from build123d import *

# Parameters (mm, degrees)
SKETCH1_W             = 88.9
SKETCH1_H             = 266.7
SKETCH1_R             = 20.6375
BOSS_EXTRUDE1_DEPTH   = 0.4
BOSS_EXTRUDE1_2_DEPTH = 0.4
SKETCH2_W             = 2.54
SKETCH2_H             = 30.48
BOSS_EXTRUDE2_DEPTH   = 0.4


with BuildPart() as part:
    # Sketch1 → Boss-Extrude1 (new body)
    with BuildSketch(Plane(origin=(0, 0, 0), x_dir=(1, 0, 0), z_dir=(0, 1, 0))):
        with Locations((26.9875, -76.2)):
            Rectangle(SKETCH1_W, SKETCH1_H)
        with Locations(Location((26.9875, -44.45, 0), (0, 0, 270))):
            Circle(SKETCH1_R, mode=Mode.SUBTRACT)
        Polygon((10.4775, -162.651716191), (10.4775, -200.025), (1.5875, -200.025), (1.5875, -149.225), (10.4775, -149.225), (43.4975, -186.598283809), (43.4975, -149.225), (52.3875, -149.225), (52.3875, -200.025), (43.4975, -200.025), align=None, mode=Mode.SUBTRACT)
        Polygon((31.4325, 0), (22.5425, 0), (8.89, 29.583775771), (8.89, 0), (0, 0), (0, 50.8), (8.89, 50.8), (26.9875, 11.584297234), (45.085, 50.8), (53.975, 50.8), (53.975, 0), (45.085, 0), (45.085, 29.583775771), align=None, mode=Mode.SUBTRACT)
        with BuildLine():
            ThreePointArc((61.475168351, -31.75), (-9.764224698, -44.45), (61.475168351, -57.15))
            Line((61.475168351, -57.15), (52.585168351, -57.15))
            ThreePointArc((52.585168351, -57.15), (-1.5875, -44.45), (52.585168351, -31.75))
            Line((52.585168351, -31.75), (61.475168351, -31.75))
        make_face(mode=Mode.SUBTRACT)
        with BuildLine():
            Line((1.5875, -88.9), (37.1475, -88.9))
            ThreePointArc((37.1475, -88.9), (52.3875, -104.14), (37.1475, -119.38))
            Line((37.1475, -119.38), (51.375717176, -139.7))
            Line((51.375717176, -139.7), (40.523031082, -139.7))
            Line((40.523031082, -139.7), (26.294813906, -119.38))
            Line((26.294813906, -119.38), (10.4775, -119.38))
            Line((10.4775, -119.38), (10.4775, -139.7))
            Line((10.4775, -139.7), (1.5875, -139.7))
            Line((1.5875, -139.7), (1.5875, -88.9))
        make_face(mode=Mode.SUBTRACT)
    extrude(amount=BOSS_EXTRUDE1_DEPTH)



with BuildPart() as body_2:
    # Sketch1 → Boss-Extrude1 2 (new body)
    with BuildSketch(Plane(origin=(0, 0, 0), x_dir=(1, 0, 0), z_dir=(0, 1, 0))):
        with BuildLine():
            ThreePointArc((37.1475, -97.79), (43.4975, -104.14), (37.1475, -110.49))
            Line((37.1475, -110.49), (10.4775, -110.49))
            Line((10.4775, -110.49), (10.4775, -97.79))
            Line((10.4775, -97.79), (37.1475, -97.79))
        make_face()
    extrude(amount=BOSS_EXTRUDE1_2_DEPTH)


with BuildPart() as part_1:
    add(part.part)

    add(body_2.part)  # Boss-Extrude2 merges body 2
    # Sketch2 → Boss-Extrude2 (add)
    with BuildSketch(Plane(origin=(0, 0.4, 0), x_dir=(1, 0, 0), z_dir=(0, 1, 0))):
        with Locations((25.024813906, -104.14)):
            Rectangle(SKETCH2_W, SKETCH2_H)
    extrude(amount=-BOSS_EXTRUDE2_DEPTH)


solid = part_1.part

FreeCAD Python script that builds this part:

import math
import FreeCAD as App
import Part
import Sketcher
from FreeCAD import Vector
Q = App.Units.Quantity

doc = App.newDocument("Part")
body = doc.addObject("PartDesign::Body", "Body")

# Sketch on XZ plane
sketch1 = body.newObject("Sketcher::SketchObject", "Sketch")
sketch1.AttachmentSupport = (doc.getObject("XZ_Plane"), [""])
sketch1.MapMode = "FlatFace"
sketch1.addGeometry(Part.LineSegment(Vector(-17.4625, -57.15, 0), Vector(-17.4625, 209.55, 0)), False)
sketch1.addGeometry(Part.LineSegment(Vector(-17.4625, 209.55, 0), Vector(71.4375, 209.55, 0)), False)
sketch1.addGeometry(Part.LineSegment(Vector(71.4375, 209.55, 0), Vector(71.4375, -57.15, 0)), False)
sketch1.addGeometry(Part.LineSegment(Vector(71.4375, -57.15, 0), Vector(-17.4625, -57.15, 0)), False)
sketch1.addGeometry(Part.LineSegment(Vector(43.4975, 200.025, 0), Vector(10.4775, 162.651716, 0)), False)
sketch1.addGeometry(Part.LineSegment(Vector(10.4775, 162.651716, 0), Vector(10.4775, 200.025, 0)), False)
sketch1.addGeometry(Part.LineSegment(Vector(10.4775, 200.025, 0), Vector(1.5875, 200.025, 0)), False)
sketch1.addGeometry(Part.LineSegment(Vector(1.5875, 200.025, 0), Vector(1.5875, 149.225, 0)), False)
sketch1.addGeometry(Part.LineSegment(Vector(1.5875, 149.225, 0), Vector(10.4775, 149.225, 0)), False)
sketch1.addGeometry(Part.LineSegment(Vector(10.4775, 149.225, 0), Vector(43.4975, 186.598284, 0)), False)
sketch1.addGeometry(Part.LineSegment(Vector(43.4975, 186.598284, 0), Vector(43.4975, 149.225, 0)), False)
sketch1.addGeometry(Part.LineSegment(Vector(43.4975, 149.225, 0), Vector(52.3875, 149.225, 0)), False)
sketch1.addGeometry(Part.LineSegment(Vector(52.3875, 149.225, 0), Vector(52.3875, 200.025, 0)), False)
sketch1.addGeometry(Part.LineSegment(Vector(52.3875, 200.025, 0), Vector(43.4975, 200.025, 0)), False)
sketch1.addGeometry(Part.LineSegment(Vector(1.5875, 139.7, 0), Vector(1.5875, 88.9, 0)), False)
sketch1.addGeometry(Part.LineSegment(Vector(1.5875, 88.9, 0), Vector(37.1475, 88.9, 0)), False)
sketch1.addGeometry(Part.ArcOfCircle(Part.Circle(Vector(37.1475, 104.14, 0), Vector(0, 0, 1), 15.24), math.radians(-90), math.radians(90)), False)
sketch1.addGeometry(Part.LineSegment(Vector(37.1475, 119.38, 0), Vector(51.375717, 139.7, 0)), False)
sketch1.addGeometry(Part.LineSegment(Vector(51.375717, 139.7, 0), Vector(40.523031, 139.7, 0)), False)
sketch1.addGeometry(Part.LineSegment(Vector(40.523031, 139.7, 0), Vector(26.294814, 119.38, 0)), False)
sketch1.addGeometry(Part.LineSegment(Vector(26.294814, 119.38, 0), Vector(10.4775, 119.38, 0)), False)
sketch1.addGeometry(Part.LineSegment(Vector(10.4775, 119.38, 0), Vector(10.4775, 139.7, 0)), False)
sketch1.addGeometry(Part.LineSegment(Vector(10.4775, 139.7, 0), Vector(1.5875, 139.7, 0)), False)
sketch1.addGeometry(Part.ArcOfCircle(Part.Circle(Vector(26.9875, 44.45, 0), Vector(0, 0, 1), 36.751725), math.radians(20.216107), math.radians(339.783893)), False)
sketch1.addGeometry(Part.LineSegment(Vector(61.475168, 31.75, 0), Vector(52.585168, 31.75, 0)), False)
sketch1.addGeometry(Part.ArcOfCircle(Part.Circle(Vector(26.9875, 44.45, 0), Vector(0, 0, 1), 28.575), math.radians(26.3878), math.radians(333.6122)), False)
sketch1.addGeometry(Part.LineSegment(Vector(52.585168, 57.15, 0), Vector(61.475168, 57.15, 0)), False)
sketch1.addGeometry(Part.Circle(Vector(26.9875, 44.45, 0), Vector(0, 0, 1), 20.6375), False)
sketch1.addGeometry(Part.LineSegment(Vector(45.085, -29.583776, 0), Vector(31.4325, 0, 0)), False)
sketch1.addGeometry(Part.LineSegment(Vector(31.4325, 0, 0), Vector(22.5425, 0, 0)), False)
sketch1.addGeometry(Part.LineSegment(Vector(22.5425, 0, 0), Vector(8.89, -29.583776, 0)), False)
sketch1.addGeometry(Part.LineSegment(Vector(8.89, -29.583776, 0), Vector(8.89, 0, 0)), False)
sketch1.addGeometry(Part.LineSegment(Vector(8.89, 0, 0), Vector(0, 0, 0)), False)
sketch1.addGeometry(Part.LineSegment(Vector(0, 0, 0), Vector(0, -50.8, 0)), False)
sketch1.addGeometry(Part.LineSegment(Vector(0, -50.8, 0), Vector(8.89, -50.8, 0)), False)
sketch1.addGeometry(Part.LineSegment(Vector(8.89, -50.8, 0), Vector(26.9875, -11.584297, 0)), False)
sketch1.addGeometry(Part.LineSegment(Vector(26.9875, -11.584297, 0), Vector(45.085, -50.8, 0)), False)
sketch1.addGeometry(Part.LineSegment(Vector(45.085, -50.8, 0), Vector(53.975, -50.8, 0)), False)
sketch1.addGeometry(Part.LineSegment(Vector(53.975, -50.8, 0), Vector(53.975, 0, 0)), False)
sketch1.addGeometry(Part.LineSegment(Vector(53.975, 0, 0), Vector(45.085, 0, 0)), False)
sketch1.addGeometry(Part.LineSegment(Vector(45.085, 0, 0), Vector(45.085, -29.583776, 0)), False)
sketch1.addConstraint(Sketcher.Constraint("Coincident", 0, 2, 1, 1))
sketch1.addConstraint(Sketcher.Constraint("Coincident", 1, 2, 2, 1))
sketch1.addConstraint(Sketcher.Constraint("Coincident", 2, 2, 3, 1))
sketch1.addConstraint(Sketcher.Constraint("Coincident", 3, 2, 0, 1))
sketch1.addConstraint(Sketcher.Constraint("Coincident", 4, 2, 5, 1))
sketch1.addConstraint(Sketcher.Constraint("Coincident", 5, 2, 6, 1))
sketch1.addConstraint(Sketcher.Constraint("Coincident", 6, 2, 7, 1))
sketch1.addConstraint(Sketcher.Constraint("Coincident", 7, 2, 8, 1))
sketch1.addConstraint(Sketcher.Constraint("Coincident", 8, 2, 9, 1))
sketch1.addConstraint(Sketcher.Constraint("Coincident", 9, 2, 10, 1))
sketch1.addConstraint(Sketcher.Constraint("Coincident", 10, 2, 11, 1))
sketch1.addConstraint(Sketcher.Constraint("Coincident", 11, 2, 12, 1))
sketch1.addConstraint(Sketcher.Constraint("Coincident", 12, 2, 13, 1))
sketch1.addConstraint(Sketcher.Constraint("Coincident", 13, 2, 4, 1))
sketch1.addConstraint(Sketcher.Constraint("Coincident", 14, 2, 15, 1))
sketch1.addConstraint(Sketcher.Constraint("Tangent", 15, 2, 16, 1))
sketch1.addConstraint(Sketcher.Constraint("Coincident", 16, 2, 17, 1))
sketch1.addConstraint(Sketcher.Constraint("Coincident", 17, 2, 18, 1))
sketch1.addConstraint(Sketcher.Constraint("Coincident", 18, 2, 19, 1))
sketch1.addConstraint(Sketcher.Constraint("Coincident", 19, 2, 20, 1))
sketch1.addConstraint(Sketcher.Constraint("Coincident", 20, 2, 21, 1))
sketch1.addConstraint(Sketcher.Constraint("Coincident", 21, 2, 22, 1))
sketch1.addConstraint(Sketcher.Constraint("Coincident", 22, 2, 14, 1))
sketch1.addConstraint(Sketcher.Constraint("Coincident", 23, 2, 24, 1))
sketch1.addConstraint(Sketcher.Constraint("Coincident", 24, 2, 25, 2))
sketch1.addConstraint(Sketcher.Constraint("Coincident", 25, 1, 26, 1))
sketch1.addConstraint(Sketcher.Constraint("Coincident", 26, 2, 23, 1))
sketch1.addConstraint(Sketcher.Constraint("Coincident", 28, 2, 29, 1))
sketch1.addConstraint(Sketcher.Constraint("Coincident", 29, 2, 30, 1))
sketch1.addConstraint(Sketcher.Constraint("Coincident", 30, 2, 31, 1))
sketch1.addConstraint(Sketcher.Constraint("Coincident", 31, 2, 32, 1))
sketch1.addConstraint(Sketcher.Constraint("Coincident", 32, 2, 33, 1))
sketch1.addConstraint(Sketcher.Constraint("Coincident", 33, 2, 34, 1))
sketch1.addConstraint(Sketcher.Constraint("Coincident", 34, 2, 35, 1))
sketch1.addConstraint(Sketcher.Constraint("Coincident", 35, 2, 36, 1))
sketch1.addConstraint(Sketcher.Constraint("Coincident", 36, 2, 37, 1))
sketch1.addConstraint(Sketcher.Constraint("Coincident", 37, 2, 38, 1))
sketch1.addConstraint(Sketcher.Constraint("Coincident", 38, 2, 39, 1))
sketch1.addConstraint(Sketcher.Constraint("Coincident", 39, 2, 40, 1))
sketch1.addConstraint(Sketcher.Constraint("Coincident", 40, 2, 28, 1))
sketch1.addConstraint(Sketcher.Constraint("Vertical", 0))
sketch1.addConstraint(Sketcher.Constraint("Horizontal", 1))
sketch1.addConstraint(Sketcher.Constraint("Vertical", 2))
sketch1.addConstraint(Sketcher.Constraint("Horizontal", 3))
sketch1.addConstraint(Sketcher.Constraint("Vertical", 5))
sketch1.addConstraint(Sketcher.Constraint("Horizontal", 6))
sketch1.addConstraint(Sketcher.Constraint("Vertical", 7))
sketch1.addConstraint(Sketcher.Constraint("Horizontal", 8))
sketch1.addConstraint(Sketcher.Constraint("Vertical", 10))
sketch1.addConstraint(Sketcher.Constraint("Horizontal", 11))
sketch1.addConstraint(Sketcher.Constraint("Vertical", 12))
sketch1.addConstraint(Sketcher.Constraint("Horizontal", 13))
sketch1.addConstraint(Sketcher.Constraint("Vertical", 14))
sketch1.addConstraint(Sketcher.Constraint("Horizontal", 15))
sketch1.addConstraint(Sketcher.Constraint("Horizontal", 18))
sketch1.addConstraint(Sketcher.Constraint("Horizontal", 20))
sketch1.addConstraint(Sketcher.Constraint("Vertical", 21))
sketch1.addConstraint(Sketcher.Constraint("Horizontal", 22))
sketch1.addConstraint(Sketcher.Constraint("Horizontal", 24))
sketch1.addConstraint(Sketcher.Constraint("Horizontal", 26))
sketch1.addConstraint(Sketcher.Constraint("Horizontal", 29))
sketch1.addConstraint(Sketcher.Constraint("Vertical", 31))
sketch1.addConstraint(Sketcher.Constraint("Horizontal", 32))
sketch1.addConstraint(Sketcher.Constraint("Vertical", 33))
sketch1.addConstraint(Sketcher.Constraint("Horizontal", 34))
sketch1.addConstraint(Sketcher.Constraint("Horizontal", 37))
sketch1.addConstraint(Sketcher.Constraint("Vertical", 38))
sketch1.addConstraint(Sketcher.Constraint("Horizontal", 39))
sketch1.addConstraint(Sketcher.Constraint("Vertical", 40))
sketch1.addConstraint(Sketcher.Constraint("Coincident", 32, 2, -1, 1))
sketch1.addConstraint(Sketcher.Constraint("Coincident", 25, 3, 23, 3))
sketch1.addConstraint(Sketcher.Constraint("Coincident", 27, 3, 23, 3))
sketch1.addConstraint(Sketcher.Constraint("PointOnObject", 28, 2, -1))
sketch1.addConstraint(Sketcher.Constraint("PointOnObject", 38, 2, -1))
sketch1.addConstraint(Sketcher.Constraint("Parallel", 4, 9))
sketch1.addConstraint(Sketcher.Constraint("Parallel", 17, 19))
sketch1.addConstraint(Sketcher.Constraint("Parallel", 30, 35))
sketch1.addConstraint(Sketcher.Constraint("Parallel", 28, 36))
sketch1.addConstraint(Sketcher.Constraint("Horizontal", 8, 2, 10, 2))
sketch1.addConstraint(Sketcher.Constraint("Horizontal", 6, 2, 12, 2))
sketch1.addConstraint(Sketcher.Constraint("Horizontal", 16, 2, 19, 2))
sketch1.addConstraint(Sketcher.Constraint("Horizontal", 18, 2, 21, 2))
sketch1.addConstraint(Sketcher.Constraint("Horizontal", 34, 2, 36, 2))
sketch1.addConstraint(Sketcher.Constraint("Horizontal", 30, 2, 40, 2))
sketch1.addConstraint(Sketcher.Constraint("Vertical", 5, 2, 8, 2))
sketch1.addConstraint(Sketcher.Constraint("Vertical", 10, 2, 13, 2))
sketch1.addConstraint(Sketcher.Constraint("Vertical", 7, 2, 14, 2))
sketch1.addConstraint(Sketcher.Constraint("Vertical", 15, 2, 16, 2))
sketch1.addConstraint(Sketcher.Constraint("Vertical", 8, 2, 20, 2))
sketch1.addConstraint(Sketcher.Constraint("Vertical", 24, 2, 25, 1))
sketch1.addConstraint(Sketcher.Constraint("Vertical", 31, 2, 34, 2))
sketch1.addConstraint(Sketcher.Constraint("Vertical", 27, 3, 35, 2))
sketch1.addConstraint(Sketcher.Constraint("Vertical", 36, 2, 39, 2))
sketch1.addConstraint(Sketcher.Constraint("Equal", 8, 11))
sketch1.addConstraint(Sketcher.Constraint("Equal", 22, 24))
sketch1.addConstraint(Sketcher.Constraint("Equal", 26, 29))
sketch1.addConstraint(Sketcher.Constraint("Equal", 29, 32))
sketch1.addConstraint(Sketcher.Constraint("Equal", 34, 37))
sketch1.addConstraint(Sketcher.Constraint("Equal", 12, 14))
sketch1.addConstraint(Sketcher.Constraint("Equal", 14, 33))
sketch1.addConstraint(Sketcher.Constraint("Equal", 28, 30))
sketch1.addConstraint(Sketcher.Constraint("Radius", 16, Q("0.6 in")))
sketch1.addConstraint(Sketcher.Constraint("DistanceY", 7, 2, 7, 1, Q("2 in")))
sketch1.addConstraint(Sketcher.Constraint("Diameter", 27, Q("1.625 in")))
sketch1.addConstraint(Sketcher.Constraint("DistanceX", 1, 1, 1, 2, Q("3.5 in")))
sketch1.addConstraint(Sketcher.Constraint("DistanceX", 15, 1, 15, 2, Q("1.4 in")))
sketch1.addConstraint(Sketcher.Constraint("DistanceY", 0, 1, 0, 2, Q("10.5 in")))
sketch1.addConstraint(Sketcher.Constraint("Angle", 17, Q("55 deg")))
sketch1.addConstraint(Sketcher.Constraint("Radius", 25, Q("1.125 in")))
sketch1.addConstraint(Sketcher.Constraint("DistanceY", 2, 2, 23, 3, Q("4 in")))
sketch1.addConstraint(Sketcher.Constraint("DistanceX", 6, 2, 12, 2, Q("2 in")))
sketch1.addConstraint(Sketcher.Constraint("DistanceX", 14, 2, 23, 3, Q("1 in")))
sketch1.addConstraint(Sketcher.Constraint("DistanceY", 24, 2, 25, 1, Q("1 in")))
sketch1.addConstraint(Sketcher.Constraint("DistanceX", 6, 2, 6, 1, Q("0.35 in")))
sketch1.addConstraint(Sketcher.Constraint("DistanceY", -1, 1, 16, 3, Q("4.1 in")))
sketch1.addConstraint(Sketcher.Constraint("DistanceX", 0, 2, 4, 2, Q("1.1 in")))
sketch1.addConstraint(Sketcher.Constraint("DistanceY", -1, 1, 23, 3, Q("1.75 in")))
sketch1.addConstraint(Sketcher.Constraint("DistanceX", -1, 1, 23, 3, Q("1.0625 in")))
sketch1.addConstraint(Sketcher.Constraint("DistanceY", -1, 1, 5, 2, Q("7.875 in")))
sketch1.addConstraint(Sketcher.Constraint("Distance", 4, 49.87066))
sketch1.addConstraint(Sketcher.Constraint("Distance", 28, 32.582059))
sketch1.addConstraint(Sketcher.Constraint("DistanceX", 18, 2, 18, 1, 10.852686))
pad1 = body.newObject("PartDesign::Pad", "Pad")
pad1.Profile = sketch1
pad1.Length = 0.4
pad1.Reversed = True
body2 = doc.addObject("PartDesign::Body", "Body001")

# Sketch on XZ plane
sketch2 = body2.newObject("Sketcher::SketchObject", "Sketch001")
sketch2.AttachmentSupport = (doc.getObject("XZ_Plane001"), [""])
sketch2.MapMode = "FlatFace"
sketch2.addGeometry(Part.ArcOfCircle(Part.Circle(Vector(37.1475, 104.14, 0), Vector(0, 0, 1), 6.35), math.radians(-90), math.radians(90)), False)
sketch2.addGeometry(Part.LineSegment(Vector(37.1475, 97.79, 0), Vector(10.4775, 97.79, 0)), False)
sketch2.addGeometry(Part.LineSegment(Vector(10.4775, 97.79, 0), Vector(10.4775, 110.49, 0)), False)
sketch2.addGeometry(Part.LineSegment(Vector(10.4775, 110.49, 0), Vector(37.1475, 110.49, 0)), False)
sketch2.addConstraint(Sketcher.Constraint("Tangent", 0, 1, 1, 1))
sketch2.addConstraint(Sketcher.Constraint("Coincident", 1, 2, 2, 1))
sketch2.addConstraint(Sketcher.Constraint("Coincident", 2, 2, 3, 1))
sketch2.addConstraint(Sketcher.Constraint("Tangent", 3, 2, 0, 2))
sketch2.addConstraint(Sketcher.Constraint("Horizontal", 1))
sketch2.addConstraint(Sketcher.Constraint("Vertical", 2))
sketch2.addConstraint(Sketcher.Constraint("Horizontal", 3))
sketch2.addConstraint(Sketcher.Constraint("Radius", 0, Q("0.25 in")))
sketch2.addConstraint(Sketcher.Constraint("DistanceX", 1, 2, 1, 1, Q("1.05 in")))
sketch2.addConstraint(Sketcher.Constraint("DistanceY", -1, 1, 0, 3, Q("4.1 in")))
sketch2.addConstraint(Sketcher.Constraint("DistanceX", -1, 1, 0, 3, Q("1.4625 in")))
pad2 = body2.newObject("PartDesign::Pad", "Pad001")
pad2.Profile = sketch2
pad2.Length = 0.4
pad2.Reversed = True
body.AllowCompound = True
doc.recompute()

boolean = body.newObject("PartDesign::Boolean", "Boolean")
boolean.Type = "Fuse"
boolean.addObjects([body2])

# Sketch on XZ plane
sketch3 = body.newObject("Sketcher::SketchObject", "Sketch002")
sketch3.AttachmentSupport = (doc.getObject("XZ_Plane"), [""])
sketch3.MapMode = "FlatFace"
sketch3.AttachmentOffset = App.Placement(Vector(0, 0, -0.4), App.Rotation())
sketch3.addGeometry(Part.LineSegment(Vector(23.754814, 88.9, 0), Vector(23.754814, 119.38, 0)), False)
sketch3.addGeometry(Part.LineSegment(Vector(23.754814, 119.38, 0), Vector(26.294814, 119.38, 0)), False)
sketch3.addGeometry(Part.LineSegment(Vector(26.294814, 119.38, 0), Vector(26.294814, 88.9, 0)), False)
sketch3.addGeometry(Part.LineSegment(Vector(26.294814, 88.9, 0), Vector(23.754814, 88.9, 0)), False)
sketch3.addConstraint(Sketcher.Constraint("Coincident", 0, 2, 1, 1))
sketch3.addConstraint(Sketcher.Constraint("Coincident", 1, 2, 2, 1))
sketch3.addConstraint(Sketcher.Constraint("Coincident", 2, 2, 3, 1))
sketch3.addConstraint(Sketcher.Constraint("Coincident", 3, 2, 0, 1))
sketch3.addConstraint(Sketcher.Constraint("Vertical", 0))
sketch3.addConstraint(Sketcher.Constraint("Horizontal", 1))
sketch3.addConstraint(Sketcher.Constraint("Vertical", 2))
sketch3.addConstraint(Sketcher.Constraint("Horizontal", 3))
sketch3.addConstraint(Sketcher.Constraint("DistanceX", 1, 1, 1, 2, Q("0.1 in")))
sketch3.addConstraint(Sketcher.Constraint("DistanceY", 0, 1, 0, 2, Q("1.2 in")))
sketch3.addConstraint(Sketcher.Constraint("DistanceY", -1, 1, 0, 2, Q("4.7 in")))
sketch3.addConstraint(Sketcher.Constraint("DistanceX", -1, 1, 0, 2, 23.754814))
pad3 = body.newObject("PartDesign::Pad", "Pad002")
pad3.Profile = sketch3
pad3.Length = 0.4

doc.recompute()
